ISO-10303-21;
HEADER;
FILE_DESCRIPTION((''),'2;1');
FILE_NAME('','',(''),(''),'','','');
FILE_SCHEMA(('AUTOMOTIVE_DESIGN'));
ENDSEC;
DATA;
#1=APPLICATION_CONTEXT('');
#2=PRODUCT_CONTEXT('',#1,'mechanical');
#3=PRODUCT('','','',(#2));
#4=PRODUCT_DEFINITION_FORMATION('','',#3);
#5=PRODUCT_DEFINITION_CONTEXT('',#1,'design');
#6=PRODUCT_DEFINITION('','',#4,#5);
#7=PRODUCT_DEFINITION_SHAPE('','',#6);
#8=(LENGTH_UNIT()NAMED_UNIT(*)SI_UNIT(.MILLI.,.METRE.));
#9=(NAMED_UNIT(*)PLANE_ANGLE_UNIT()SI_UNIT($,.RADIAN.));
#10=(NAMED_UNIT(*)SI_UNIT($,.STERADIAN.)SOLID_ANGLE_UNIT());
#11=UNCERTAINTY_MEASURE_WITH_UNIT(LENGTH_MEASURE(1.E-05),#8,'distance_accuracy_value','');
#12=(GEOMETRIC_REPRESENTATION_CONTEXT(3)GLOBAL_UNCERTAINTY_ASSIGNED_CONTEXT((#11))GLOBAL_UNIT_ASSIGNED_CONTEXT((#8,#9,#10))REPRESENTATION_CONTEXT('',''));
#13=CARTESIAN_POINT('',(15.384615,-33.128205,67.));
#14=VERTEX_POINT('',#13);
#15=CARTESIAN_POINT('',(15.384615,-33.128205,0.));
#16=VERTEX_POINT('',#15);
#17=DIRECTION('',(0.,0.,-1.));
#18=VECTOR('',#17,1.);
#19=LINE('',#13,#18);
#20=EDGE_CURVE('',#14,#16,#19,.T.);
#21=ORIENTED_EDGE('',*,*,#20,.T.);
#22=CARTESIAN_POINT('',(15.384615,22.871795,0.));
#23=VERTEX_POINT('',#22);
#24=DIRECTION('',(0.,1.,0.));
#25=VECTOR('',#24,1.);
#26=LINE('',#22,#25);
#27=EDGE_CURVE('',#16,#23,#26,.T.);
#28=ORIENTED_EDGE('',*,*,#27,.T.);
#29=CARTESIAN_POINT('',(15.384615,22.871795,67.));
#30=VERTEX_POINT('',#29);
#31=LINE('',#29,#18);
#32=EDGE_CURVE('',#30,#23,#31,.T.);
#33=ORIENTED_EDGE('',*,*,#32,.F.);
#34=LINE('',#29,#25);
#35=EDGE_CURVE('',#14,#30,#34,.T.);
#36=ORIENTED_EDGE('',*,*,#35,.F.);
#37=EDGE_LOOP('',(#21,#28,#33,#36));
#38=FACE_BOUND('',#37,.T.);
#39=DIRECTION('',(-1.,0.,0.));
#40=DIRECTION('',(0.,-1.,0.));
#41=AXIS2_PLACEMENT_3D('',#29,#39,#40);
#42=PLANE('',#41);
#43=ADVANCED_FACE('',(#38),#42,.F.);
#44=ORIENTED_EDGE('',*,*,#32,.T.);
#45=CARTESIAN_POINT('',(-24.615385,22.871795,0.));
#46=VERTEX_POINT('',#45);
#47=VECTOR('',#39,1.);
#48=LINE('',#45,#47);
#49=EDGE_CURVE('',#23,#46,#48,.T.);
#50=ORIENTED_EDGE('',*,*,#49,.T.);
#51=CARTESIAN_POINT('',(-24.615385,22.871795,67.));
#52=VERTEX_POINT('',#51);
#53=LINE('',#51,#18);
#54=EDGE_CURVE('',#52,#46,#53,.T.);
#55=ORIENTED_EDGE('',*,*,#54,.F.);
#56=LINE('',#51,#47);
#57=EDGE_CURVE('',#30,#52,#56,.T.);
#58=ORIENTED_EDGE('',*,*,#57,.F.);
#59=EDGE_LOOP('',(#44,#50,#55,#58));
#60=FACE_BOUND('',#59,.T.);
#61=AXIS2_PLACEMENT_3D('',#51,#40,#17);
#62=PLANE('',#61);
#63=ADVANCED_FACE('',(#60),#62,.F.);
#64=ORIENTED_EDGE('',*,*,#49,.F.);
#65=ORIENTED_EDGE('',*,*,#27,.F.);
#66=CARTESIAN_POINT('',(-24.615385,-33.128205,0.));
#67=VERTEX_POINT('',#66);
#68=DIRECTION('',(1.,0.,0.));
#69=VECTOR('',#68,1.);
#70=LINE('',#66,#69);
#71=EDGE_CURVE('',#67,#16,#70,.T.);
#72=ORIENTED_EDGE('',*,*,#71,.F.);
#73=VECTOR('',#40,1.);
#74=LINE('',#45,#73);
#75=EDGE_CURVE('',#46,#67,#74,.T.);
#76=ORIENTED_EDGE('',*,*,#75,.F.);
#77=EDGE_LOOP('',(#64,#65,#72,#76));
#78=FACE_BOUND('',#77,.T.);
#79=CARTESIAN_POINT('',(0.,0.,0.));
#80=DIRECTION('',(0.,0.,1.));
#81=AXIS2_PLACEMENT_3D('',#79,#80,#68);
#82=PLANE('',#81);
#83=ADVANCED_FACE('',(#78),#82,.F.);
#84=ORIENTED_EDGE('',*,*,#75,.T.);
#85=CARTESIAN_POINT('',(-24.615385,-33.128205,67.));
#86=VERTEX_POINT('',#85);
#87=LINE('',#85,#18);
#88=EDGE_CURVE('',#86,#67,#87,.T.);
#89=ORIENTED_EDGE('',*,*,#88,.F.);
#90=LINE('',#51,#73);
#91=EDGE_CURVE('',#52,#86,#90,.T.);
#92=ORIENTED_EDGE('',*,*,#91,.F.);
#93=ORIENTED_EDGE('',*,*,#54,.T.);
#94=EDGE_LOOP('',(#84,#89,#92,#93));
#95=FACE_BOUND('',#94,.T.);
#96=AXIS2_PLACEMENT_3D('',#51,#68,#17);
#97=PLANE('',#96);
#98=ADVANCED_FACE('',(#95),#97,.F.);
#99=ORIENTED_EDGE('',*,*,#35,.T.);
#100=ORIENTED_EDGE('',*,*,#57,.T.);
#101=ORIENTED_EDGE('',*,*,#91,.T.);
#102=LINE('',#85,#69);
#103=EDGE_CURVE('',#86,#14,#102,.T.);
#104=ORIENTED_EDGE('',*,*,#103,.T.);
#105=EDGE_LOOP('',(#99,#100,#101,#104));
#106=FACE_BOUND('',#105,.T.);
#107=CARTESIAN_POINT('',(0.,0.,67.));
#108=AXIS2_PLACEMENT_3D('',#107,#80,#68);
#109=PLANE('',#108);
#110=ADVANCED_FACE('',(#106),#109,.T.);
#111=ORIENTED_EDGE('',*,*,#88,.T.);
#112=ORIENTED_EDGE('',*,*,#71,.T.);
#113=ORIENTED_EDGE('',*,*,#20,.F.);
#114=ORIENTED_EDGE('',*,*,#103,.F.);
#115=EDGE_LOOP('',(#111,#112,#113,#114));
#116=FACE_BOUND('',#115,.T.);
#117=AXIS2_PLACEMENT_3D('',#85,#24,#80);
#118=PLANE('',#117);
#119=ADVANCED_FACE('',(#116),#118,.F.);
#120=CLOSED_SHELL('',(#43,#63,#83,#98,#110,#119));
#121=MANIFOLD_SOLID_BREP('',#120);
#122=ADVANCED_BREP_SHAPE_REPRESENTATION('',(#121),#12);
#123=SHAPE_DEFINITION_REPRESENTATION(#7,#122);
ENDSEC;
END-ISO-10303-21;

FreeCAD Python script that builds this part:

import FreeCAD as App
import Part
import Sketcher

V = App.Vector

doc = App.newDocument("Part")
params = doc.addObject("Spreadsheet::Sheet", "Params")
for row, (alias, value) in enumerate([
    ("sketch1_width", "40 mm"),
    ("sketch1_height", "56 mm"),
    ("pad1_length", "67 mm"),
], start=1):
    params.set(f"A{row}", alias)
    params.set(f"B{row}", "=" + value)
    params.setAlias(f"B{row}", alias)

body = doc.addObject("PartDesign::Body", "Body")

sketch1 = doc.addObject("Sketcher::SketchObject", "Sketch")
body.addObject(sketch1)
sketch1.AttachmentSupport = (doc.XY_Plane, [""])
sketch1.MapMode = "FlatFace"
sketch1.addGeometry(Part.LineSegment(V(-24.615385, 22.871795, 0), V(-24.615385, -33.128205, 0)), False)
sketch1.addGeometry(Part.LineSegment(V(-24.615385, -33.128205, 0), V(15.384615, -33.128205, 0)), False)
sketch1.addGeometry(Part.LineSegment(V(15.384615, -33.128205, 0), V(15.384615, 22.871795, 0)), False)
sketch1.addGeometry(Part.LineSegment(V(15.384615, 22.871795, 0), V(-24.615385, 22.871795, 0)), False)
sketch1.addConstraint(Sketcher.Constraint("Coincident", 0, 2, 1, 1))
sketch1.addConstraint(Sketcher.Constraint("Coincident", 1, 2, 2, 1))
sketch1.addConstraint(Sketcher.Constraint("Coincident", 2, 2, 3, 1))
sketch1.addConstraint(Sketcher.Constraint("Coincident", 3, 2, 0, 1))
sketch1.addConstraint(Sketcher.Constraint("Vertical", 0))
sketch1.addConstraint(Sketcher.Constraint("Horizontal", 1))
sketch1.addConstraint(Sketcher.Constraint("Vertical", 2))
sketch1.addConstraint(Sketcher.Constraint("Horizontal", 3))
sketch1.addConstraint(Sketcher.Constraint("DistanceX", 1, 1, 1, 2, 40.0))
sketch1.addConstraint(Sketcher.Constraint("DistanceY", 0, 2, 0, 1, 56.0))
sketch1.addConstraint(Sketcher.Constraint("DistanceX", 0, 2, -1, 1, 24.615385))
sketch1.addConstraint(Sketcher.Constraint("DistanceY", 0, 2, -1, 1, 33.128205))
sketch1.setExpression("Constraints[8]", "Params.sketch1_width")
sketch1.setExpression("Constraints[9]", "Params.sketch1_height")
pad1 = doc.addObject("PartDesign::Pad", "Pad")
body.addObject(pad1)
pad1.Profile = sketch1
pad1.setExpression("Length", "Params.pad1_length")

doc.recompute()
